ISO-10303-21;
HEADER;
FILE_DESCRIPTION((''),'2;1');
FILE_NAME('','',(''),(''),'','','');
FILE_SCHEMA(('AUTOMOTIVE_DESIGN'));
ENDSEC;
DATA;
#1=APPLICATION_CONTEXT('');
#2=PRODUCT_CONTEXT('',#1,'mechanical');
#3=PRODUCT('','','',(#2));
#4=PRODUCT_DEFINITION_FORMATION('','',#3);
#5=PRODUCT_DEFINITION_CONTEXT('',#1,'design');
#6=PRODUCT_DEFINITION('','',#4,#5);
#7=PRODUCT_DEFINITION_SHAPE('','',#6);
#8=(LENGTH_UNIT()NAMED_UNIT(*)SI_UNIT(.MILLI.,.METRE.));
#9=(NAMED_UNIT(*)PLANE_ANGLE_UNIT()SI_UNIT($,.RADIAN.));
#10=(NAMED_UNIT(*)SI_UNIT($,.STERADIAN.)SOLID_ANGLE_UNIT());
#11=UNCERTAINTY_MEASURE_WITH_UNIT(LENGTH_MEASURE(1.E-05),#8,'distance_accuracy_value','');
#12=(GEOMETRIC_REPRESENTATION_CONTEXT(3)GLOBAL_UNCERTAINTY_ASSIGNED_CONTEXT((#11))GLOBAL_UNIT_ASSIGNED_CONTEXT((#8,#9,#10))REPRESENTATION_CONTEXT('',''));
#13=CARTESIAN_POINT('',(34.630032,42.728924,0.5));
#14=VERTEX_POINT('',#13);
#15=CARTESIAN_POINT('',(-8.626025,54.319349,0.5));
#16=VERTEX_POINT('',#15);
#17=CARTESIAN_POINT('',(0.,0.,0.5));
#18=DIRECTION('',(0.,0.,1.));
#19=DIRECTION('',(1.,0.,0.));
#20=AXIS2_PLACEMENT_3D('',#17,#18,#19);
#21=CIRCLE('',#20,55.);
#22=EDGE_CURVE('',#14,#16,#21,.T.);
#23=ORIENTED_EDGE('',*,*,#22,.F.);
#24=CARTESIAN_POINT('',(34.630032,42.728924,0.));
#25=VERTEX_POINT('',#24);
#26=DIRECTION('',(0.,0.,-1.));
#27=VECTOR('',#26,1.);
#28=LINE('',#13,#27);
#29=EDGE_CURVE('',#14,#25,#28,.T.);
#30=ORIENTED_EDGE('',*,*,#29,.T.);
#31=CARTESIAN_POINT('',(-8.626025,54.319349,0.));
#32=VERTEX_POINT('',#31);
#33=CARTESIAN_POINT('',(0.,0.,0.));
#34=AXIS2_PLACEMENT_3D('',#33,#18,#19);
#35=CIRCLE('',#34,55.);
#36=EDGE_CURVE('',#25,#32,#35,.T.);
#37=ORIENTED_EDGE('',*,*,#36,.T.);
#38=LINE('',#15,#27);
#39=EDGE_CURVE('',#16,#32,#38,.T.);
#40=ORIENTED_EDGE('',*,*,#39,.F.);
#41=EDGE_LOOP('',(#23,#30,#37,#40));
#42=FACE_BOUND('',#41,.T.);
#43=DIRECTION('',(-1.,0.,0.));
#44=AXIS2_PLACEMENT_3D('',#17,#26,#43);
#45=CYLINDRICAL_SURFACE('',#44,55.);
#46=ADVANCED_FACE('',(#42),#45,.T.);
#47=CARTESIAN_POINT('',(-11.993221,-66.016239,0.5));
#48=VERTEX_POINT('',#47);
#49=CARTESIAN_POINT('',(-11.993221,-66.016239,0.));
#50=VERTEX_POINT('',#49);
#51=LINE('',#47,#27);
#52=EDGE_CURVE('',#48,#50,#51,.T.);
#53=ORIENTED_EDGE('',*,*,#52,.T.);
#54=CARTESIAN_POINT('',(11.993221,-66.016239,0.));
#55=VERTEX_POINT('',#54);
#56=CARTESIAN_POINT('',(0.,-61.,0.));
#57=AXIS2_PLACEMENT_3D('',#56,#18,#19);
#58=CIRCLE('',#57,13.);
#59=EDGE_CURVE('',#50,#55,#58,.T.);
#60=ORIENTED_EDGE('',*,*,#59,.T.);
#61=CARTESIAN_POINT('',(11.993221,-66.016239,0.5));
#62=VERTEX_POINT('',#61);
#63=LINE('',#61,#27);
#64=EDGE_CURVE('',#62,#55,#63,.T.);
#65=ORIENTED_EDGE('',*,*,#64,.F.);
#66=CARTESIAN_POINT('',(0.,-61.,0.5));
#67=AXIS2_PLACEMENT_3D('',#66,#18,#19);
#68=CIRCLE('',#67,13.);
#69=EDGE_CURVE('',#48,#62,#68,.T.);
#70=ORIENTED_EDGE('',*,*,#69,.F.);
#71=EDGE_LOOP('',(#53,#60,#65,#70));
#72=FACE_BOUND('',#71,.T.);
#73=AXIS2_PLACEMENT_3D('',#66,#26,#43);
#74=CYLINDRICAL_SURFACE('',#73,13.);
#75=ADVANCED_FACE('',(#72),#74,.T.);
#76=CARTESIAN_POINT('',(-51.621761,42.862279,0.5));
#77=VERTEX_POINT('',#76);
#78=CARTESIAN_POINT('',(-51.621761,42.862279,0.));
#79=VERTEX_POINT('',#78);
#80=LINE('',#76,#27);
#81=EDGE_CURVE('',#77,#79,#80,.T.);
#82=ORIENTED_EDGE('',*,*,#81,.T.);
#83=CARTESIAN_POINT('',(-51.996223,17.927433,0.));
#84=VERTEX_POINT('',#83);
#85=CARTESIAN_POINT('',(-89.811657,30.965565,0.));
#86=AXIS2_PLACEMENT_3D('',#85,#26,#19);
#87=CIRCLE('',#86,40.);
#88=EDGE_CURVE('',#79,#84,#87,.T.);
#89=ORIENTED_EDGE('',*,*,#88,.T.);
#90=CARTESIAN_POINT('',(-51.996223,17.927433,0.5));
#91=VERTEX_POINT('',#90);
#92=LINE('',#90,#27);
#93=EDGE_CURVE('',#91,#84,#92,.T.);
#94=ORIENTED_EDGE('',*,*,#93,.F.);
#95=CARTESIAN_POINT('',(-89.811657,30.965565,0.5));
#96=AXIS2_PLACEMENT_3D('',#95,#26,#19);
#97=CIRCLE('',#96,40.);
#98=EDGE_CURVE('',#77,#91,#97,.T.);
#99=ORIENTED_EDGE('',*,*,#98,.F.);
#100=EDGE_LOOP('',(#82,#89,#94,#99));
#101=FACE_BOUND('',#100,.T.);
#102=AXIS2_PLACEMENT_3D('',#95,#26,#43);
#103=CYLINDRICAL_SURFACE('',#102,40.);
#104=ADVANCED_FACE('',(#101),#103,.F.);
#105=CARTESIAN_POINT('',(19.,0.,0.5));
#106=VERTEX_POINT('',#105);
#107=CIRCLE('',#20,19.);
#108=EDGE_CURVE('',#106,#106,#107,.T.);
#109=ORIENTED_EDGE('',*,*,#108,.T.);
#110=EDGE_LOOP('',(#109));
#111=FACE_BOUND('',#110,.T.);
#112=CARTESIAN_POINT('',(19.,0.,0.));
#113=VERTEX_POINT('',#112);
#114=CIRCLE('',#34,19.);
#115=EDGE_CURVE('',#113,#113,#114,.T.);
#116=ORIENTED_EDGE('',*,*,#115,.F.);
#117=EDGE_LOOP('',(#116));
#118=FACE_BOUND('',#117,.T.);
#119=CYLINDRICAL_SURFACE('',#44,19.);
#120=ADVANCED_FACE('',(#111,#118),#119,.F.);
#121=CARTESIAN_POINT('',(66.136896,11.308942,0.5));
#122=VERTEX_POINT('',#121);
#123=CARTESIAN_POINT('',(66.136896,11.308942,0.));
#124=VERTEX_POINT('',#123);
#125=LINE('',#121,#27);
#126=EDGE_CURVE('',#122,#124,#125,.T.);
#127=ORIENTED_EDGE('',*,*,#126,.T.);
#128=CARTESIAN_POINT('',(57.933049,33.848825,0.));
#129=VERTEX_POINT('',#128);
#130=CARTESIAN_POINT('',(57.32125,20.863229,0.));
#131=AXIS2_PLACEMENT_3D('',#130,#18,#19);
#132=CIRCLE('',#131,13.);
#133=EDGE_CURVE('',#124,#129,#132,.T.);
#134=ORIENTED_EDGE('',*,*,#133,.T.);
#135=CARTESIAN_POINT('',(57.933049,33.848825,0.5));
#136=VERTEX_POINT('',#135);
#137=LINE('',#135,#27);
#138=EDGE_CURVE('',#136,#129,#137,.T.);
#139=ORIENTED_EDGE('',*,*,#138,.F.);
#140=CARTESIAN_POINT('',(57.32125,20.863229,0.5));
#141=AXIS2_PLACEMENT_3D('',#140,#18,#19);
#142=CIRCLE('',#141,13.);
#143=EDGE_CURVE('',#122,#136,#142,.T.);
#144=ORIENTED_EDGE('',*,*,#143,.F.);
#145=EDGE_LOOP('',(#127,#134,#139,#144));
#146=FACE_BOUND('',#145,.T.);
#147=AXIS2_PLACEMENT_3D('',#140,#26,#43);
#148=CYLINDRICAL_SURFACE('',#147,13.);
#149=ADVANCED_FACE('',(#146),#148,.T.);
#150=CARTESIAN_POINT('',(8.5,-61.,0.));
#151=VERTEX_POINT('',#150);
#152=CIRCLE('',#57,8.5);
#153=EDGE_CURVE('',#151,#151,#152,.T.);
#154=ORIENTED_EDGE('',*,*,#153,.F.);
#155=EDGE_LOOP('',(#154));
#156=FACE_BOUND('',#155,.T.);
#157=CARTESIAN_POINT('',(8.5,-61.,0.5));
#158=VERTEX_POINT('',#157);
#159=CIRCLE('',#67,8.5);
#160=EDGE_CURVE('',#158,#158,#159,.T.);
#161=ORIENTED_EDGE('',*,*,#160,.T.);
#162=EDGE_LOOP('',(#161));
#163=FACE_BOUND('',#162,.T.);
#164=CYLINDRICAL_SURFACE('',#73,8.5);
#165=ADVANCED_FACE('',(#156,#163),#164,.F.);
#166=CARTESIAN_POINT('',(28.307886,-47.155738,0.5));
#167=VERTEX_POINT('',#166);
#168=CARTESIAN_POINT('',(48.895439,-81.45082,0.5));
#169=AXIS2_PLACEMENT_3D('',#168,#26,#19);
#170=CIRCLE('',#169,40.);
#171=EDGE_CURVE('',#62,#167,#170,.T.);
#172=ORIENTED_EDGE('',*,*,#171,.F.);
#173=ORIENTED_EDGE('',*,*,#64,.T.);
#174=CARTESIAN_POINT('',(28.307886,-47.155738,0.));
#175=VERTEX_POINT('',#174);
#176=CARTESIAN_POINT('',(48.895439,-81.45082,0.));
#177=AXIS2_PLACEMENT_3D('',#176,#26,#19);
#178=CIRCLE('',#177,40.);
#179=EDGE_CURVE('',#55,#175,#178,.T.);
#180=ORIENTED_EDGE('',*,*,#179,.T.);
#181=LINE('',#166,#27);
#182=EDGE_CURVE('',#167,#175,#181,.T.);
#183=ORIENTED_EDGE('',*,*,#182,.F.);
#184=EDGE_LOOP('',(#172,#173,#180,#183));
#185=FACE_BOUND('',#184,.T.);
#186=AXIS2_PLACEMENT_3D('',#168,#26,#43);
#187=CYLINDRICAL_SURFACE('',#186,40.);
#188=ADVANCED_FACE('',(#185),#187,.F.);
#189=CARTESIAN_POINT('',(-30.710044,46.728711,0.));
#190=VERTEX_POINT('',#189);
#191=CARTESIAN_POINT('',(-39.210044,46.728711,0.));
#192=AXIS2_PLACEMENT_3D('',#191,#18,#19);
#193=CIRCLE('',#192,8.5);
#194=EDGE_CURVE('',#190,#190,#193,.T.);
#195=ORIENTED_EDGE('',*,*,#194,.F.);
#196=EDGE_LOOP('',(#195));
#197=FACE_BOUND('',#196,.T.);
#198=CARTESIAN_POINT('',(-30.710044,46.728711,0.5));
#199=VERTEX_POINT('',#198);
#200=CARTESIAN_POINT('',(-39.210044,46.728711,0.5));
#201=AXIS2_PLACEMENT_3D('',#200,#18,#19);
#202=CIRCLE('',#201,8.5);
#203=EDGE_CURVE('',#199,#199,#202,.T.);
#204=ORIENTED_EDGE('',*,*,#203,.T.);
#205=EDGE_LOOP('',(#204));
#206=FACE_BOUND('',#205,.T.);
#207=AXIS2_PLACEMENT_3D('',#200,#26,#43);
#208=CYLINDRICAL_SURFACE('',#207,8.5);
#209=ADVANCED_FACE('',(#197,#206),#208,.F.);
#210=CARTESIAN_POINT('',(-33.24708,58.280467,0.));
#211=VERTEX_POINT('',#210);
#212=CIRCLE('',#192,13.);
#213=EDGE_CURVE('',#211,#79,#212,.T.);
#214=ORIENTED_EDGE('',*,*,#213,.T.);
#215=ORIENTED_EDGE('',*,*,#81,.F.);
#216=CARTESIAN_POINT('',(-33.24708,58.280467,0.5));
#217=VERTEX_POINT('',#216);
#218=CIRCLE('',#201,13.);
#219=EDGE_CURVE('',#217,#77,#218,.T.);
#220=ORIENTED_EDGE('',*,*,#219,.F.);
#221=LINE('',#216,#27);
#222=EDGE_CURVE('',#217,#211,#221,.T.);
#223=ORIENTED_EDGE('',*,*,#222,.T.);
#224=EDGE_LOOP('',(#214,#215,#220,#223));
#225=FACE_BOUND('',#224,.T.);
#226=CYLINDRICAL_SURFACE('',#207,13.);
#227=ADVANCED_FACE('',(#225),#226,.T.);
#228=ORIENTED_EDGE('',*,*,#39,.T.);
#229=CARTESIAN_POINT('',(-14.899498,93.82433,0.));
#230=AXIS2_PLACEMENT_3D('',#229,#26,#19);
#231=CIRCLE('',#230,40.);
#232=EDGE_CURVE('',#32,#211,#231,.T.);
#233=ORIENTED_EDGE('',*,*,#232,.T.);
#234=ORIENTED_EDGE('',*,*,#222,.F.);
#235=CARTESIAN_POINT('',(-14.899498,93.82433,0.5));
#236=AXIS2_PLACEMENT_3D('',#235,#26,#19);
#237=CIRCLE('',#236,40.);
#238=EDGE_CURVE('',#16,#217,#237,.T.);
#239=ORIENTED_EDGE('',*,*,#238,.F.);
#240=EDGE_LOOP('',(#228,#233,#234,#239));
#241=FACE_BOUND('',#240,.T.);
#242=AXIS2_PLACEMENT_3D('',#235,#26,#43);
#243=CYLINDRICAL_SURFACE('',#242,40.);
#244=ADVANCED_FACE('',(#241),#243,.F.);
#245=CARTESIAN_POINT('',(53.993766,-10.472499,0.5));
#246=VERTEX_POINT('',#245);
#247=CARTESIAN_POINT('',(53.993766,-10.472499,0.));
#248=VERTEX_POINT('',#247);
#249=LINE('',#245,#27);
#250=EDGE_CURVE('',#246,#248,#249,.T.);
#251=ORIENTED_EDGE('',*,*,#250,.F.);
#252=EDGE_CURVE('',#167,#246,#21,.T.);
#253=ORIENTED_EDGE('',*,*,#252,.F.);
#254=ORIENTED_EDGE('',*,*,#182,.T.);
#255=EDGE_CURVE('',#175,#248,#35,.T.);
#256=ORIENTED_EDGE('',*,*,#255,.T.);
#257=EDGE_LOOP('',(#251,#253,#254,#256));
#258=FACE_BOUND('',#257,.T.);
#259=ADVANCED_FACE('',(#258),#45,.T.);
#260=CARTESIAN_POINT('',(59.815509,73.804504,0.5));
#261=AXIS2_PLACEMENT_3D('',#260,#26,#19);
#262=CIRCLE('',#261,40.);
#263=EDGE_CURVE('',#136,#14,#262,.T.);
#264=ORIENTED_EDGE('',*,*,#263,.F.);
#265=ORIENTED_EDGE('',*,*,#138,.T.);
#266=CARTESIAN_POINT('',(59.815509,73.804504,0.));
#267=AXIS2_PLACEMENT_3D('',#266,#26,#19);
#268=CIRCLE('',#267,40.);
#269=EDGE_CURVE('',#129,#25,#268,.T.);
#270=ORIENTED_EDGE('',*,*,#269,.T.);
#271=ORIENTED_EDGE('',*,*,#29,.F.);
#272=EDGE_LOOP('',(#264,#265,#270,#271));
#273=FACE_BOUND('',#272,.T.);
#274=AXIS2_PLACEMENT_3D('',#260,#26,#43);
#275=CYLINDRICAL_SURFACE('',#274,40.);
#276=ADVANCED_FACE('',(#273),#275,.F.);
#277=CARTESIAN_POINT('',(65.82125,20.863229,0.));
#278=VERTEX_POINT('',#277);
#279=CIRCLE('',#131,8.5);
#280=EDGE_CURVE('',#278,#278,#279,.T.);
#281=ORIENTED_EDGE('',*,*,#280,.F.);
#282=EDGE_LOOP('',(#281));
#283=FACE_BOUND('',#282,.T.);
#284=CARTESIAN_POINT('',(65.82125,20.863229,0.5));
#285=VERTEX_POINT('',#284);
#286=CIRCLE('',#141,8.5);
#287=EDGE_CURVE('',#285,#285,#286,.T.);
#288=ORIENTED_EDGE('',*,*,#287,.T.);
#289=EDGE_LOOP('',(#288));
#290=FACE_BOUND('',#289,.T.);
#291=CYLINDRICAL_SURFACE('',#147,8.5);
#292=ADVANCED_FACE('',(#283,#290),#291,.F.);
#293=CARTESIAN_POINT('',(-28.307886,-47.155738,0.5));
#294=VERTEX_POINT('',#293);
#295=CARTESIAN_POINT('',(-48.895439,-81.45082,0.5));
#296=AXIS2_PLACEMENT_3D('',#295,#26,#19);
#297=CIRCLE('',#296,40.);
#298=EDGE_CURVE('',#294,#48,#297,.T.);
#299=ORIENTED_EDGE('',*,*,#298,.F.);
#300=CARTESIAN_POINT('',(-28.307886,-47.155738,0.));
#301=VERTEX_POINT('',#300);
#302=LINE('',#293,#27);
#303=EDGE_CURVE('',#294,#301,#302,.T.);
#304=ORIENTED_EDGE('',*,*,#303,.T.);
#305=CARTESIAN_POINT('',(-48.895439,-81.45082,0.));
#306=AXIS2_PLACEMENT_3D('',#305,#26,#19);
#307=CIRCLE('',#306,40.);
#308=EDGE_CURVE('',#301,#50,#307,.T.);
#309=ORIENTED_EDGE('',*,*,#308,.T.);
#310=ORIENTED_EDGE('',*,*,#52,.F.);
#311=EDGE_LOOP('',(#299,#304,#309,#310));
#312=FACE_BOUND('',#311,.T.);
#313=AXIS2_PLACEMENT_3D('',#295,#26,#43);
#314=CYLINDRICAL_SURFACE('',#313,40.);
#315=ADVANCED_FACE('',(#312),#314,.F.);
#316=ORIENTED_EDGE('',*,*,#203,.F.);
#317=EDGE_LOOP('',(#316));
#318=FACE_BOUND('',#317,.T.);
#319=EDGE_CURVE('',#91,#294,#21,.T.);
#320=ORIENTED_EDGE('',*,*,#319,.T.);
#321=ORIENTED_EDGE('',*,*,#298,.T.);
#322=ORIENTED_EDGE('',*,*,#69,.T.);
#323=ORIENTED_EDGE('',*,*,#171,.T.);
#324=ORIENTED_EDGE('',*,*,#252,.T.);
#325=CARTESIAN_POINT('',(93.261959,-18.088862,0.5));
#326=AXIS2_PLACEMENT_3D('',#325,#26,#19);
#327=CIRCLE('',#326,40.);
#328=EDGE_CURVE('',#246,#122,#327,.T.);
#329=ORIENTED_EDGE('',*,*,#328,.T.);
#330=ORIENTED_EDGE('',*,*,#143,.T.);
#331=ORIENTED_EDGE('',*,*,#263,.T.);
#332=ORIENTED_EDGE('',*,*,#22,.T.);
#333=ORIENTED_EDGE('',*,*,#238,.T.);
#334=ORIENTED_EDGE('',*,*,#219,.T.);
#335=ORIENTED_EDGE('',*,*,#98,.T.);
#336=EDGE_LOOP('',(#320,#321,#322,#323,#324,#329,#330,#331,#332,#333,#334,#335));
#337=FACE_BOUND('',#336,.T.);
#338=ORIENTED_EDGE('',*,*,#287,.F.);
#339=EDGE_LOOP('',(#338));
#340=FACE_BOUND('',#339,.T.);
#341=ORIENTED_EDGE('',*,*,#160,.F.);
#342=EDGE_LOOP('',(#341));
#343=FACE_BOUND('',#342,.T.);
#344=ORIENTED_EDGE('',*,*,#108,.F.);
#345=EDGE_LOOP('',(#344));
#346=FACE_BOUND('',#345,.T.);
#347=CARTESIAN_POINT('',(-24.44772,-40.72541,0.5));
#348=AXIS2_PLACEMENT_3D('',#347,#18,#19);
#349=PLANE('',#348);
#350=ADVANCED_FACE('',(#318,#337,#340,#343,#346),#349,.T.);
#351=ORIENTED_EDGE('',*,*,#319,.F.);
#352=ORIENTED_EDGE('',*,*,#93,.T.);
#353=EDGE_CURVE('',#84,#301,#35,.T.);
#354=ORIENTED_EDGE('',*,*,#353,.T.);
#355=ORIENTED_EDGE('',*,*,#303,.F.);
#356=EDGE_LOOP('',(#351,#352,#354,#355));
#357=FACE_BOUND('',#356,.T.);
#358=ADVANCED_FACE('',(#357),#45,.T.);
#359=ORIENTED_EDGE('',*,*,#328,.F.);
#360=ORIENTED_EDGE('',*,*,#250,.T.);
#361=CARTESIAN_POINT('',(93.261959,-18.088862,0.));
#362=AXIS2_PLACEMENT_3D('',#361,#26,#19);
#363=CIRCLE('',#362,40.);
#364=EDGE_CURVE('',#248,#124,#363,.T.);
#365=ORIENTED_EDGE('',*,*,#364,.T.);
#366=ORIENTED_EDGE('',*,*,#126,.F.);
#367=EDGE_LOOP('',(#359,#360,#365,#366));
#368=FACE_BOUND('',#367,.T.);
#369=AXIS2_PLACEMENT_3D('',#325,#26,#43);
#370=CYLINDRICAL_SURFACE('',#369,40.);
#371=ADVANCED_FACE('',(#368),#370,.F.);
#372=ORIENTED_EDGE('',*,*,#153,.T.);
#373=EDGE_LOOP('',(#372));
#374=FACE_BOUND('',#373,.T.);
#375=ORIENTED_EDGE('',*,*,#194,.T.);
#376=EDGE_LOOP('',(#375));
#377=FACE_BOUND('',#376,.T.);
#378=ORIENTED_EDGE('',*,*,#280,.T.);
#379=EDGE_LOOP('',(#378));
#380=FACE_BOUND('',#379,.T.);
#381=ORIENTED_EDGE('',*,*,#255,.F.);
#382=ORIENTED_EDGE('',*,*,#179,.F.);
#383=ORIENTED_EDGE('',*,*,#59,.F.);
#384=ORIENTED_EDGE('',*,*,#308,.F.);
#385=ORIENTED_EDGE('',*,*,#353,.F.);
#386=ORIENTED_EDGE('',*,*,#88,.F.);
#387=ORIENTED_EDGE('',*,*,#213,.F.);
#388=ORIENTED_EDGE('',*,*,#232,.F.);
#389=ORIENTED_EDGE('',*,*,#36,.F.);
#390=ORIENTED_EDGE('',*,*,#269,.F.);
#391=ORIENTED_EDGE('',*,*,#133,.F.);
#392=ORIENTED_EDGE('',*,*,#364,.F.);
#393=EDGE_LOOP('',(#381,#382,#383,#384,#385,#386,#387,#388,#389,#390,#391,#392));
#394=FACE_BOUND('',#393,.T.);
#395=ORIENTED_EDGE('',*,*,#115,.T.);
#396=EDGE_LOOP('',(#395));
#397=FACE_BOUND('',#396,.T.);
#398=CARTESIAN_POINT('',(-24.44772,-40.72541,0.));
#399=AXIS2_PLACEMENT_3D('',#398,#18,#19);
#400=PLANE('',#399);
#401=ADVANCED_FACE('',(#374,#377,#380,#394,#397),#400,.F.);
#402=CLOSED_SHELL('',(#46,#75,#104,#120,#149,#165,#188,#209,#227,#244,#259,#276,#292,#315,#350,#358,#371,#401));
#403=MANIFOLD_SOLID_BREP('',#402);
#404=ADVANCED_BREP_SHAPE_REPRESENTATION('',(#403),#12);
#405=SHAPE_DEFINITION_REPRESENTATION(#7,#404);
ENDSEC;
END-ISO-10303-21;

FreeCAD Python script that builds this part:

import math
import FreeCAD as App
import Part
import Sketcher
Q = App.Units.Quantity

doc = App.newDocument("Part")
body = doc.addObject("PartDesign::Body", "Body")

# Sketch on XY plane
sketch1 = body.newObject("Sketcher::SketchObject", "Sketch")
sketch1.AttachmentSupport = (doc.getObject("XY_Plane"), [""])
sketch1.MapMode = "FlatFace"
sketch1.addGeometry(Part.ArcOfCircle(Part.Circle(App.Vector(0, -61, 0), App.Vector(0, 0, 1), 13), math.radians(-157), math.radians(-23)), False)
sketch1.addGeometry(Part.ArcOfCircle(Part.Circle(App.Vector(49, -81, 0), App.Vector(0, 0, 1), 40), math.radians(121), math.radians(157)), False)
sketch1.addGeometry(Part.ArcOfCircle(Part.Circle(App.Vector(0, 0, 0), App.Vector(0, 0, 1), 55), math.radians(-59), math.radians(-11)), False)
sketch1.addGeometry(Part.ArcOfCircle(Part.Circle(App.Vector(93, -18, 0), App.Vector(0, 0, 1), 40), math.radians(133), math.radians(169)), False)
sketch1.addGeometry(Part.ArcOfCircle(Part.Circle(App.Vector(57, 21, 0), App.Vector(0, 0, 1), 13), math.radians(-47), math.radians(87)), False)
sketch1.addGeometry(Part.ArcOfCircle(Part.Circle(App.Vector(60, 74, 0), App.Vector(0, 0, 1), 40), math.radians(-129), math.radians(-93)), False)
sketch1.addGeometry(Part.ArcOfCircle(Part.Circle(App.Vector(0, 0, 0), App.Vector(0, 0, 1), 55), math.radians(51), math.radians(99)), False)
sketch1.addGeometry(Part.ArcOfCircle(Part.Circle(App.Vector(-15, 94, 0), App.Vector(0, 0, 1), 40), math.radians(-117), math.radians(-81)), False)
sketch1.addGeometry(Part.ArcOfCircle(Part.Circle(App.Vector(-39, 47, 0), App.Vector(0, 0, 1), 13), math.radians(63), math.radians(197)), False)
sketch1.addGeometry(Part.ArcOfCircle(Part.Circle(App.Vector(-90, 31, 0), App.Vector(0, 0, 1), 40), math.radians(-19), math.radians(17)), False)
sketch1.addGeometry(Part.ArcOfCircle(Part.Circle(App.Vector(0, 0, 0), App.Vector(0, 0, 1), 55), math.radians(161), math.radians(239)), False)
sketch1.addGeometry(Part.ArcOfCircle(Part.Circle(App.Vector(-49, -81, 0), App.Vector(0, 0, 1), 40), math.radians(23), math.radians(59)), False)
sketch1.addGeometry(Part.Circle(App.Vector(0, -61, 0), App.Vector(0, 0, 1), 8), False)
sketch1.addGeometry(Part.Circle(App.Vector(0, 0, 0), App.Vector(0, 0, 1), 19), False)
sketch1.addGeometry(Part.Circle(App.Vector(-39, 47, 0), App.Vector(0, 0, 1), 8), False)
sketch1.addGeometry(Part.Circle(App.Vector(57, 21, 0), App.Vector(0, 0, 1), 8), False)
sketch1.addConstraint(Sketcher.Constraint("Tangent", 0, 2, 1, 2))
sketch1.addConstraint(Sketcher.Constraint("Tangent", 1, 1, 2, 1))
sketch1.addConstraint(Sketcher.Constraint("Tangent", 2, 2, 3, 2))
sketch1.addConstraint(Sketcher.Constraint("Tangent", 3, 1, 4, 1))
sketch1.addConstraint(Sketcher.Constraint("Tangent", 4, 2, 5, 2))
sketch1.addConstraint(Sketcher.Constraint("Tangent", 5, 1, 6, 1))
sketch1.addConstraint(Sketcher.Constraint("Tangent", 6, 2, 7, 2))
sketch1.addConstraint(Sketcher.Constraint("Tangent", 7, 1, 8, 1))
sketch1.addConstraint(Sketcher.Constraint("Tangent", 8, 2, 9, 2))
sketch1.addConstraint(Sketcher.Constraint("Tangent", 9, 1, 10, 1))
sketch1.addConstraint(Sketcher.Constraint("Tangent", 10, 2, 11, 2))
sketch1.addConstraint(Sketcher.Constraint("Tangent", 11, 1, 0, 1))
sketch1.addConstraint(Sketcher.Constraint("Coincident", 2, 3, -1, 1))
sketch1.addConstraint(Sketcher.Constraint("Coincident", 6, 3, -1, 1))
sketch1.addConstraint(Sketcher.Constraint("Coincident", 10, 3, -1, 1))
sketch1.addConstraint(Sketcher.Constraint("Coincident", 13, 3, -1, 1))
sketch1.addConstraint(Sketcher.Constraint("Coincident", 12, 3, 0, 3))
sketch1.addConstraint(Sketcher.Constraint("Coincident", 14, 3, 8, 3))
sketch1.addConstraint(Sketcher.Constraint("Coincident", 15, 3, 4, 3))
sketch1.addConstraint(Sketcher.Constraint("Equal", 1, 3))
sketch1.addConstraint(Sketcher.Constraint("Equal", 0, 4))
sketch1.addConstraint(Sketcher.Constraint("Equal", 3, 5))
sketch1.addConstraint(Sketcher.Constraint("Equal", 2, 6))
sketch1.addConstraint(Sketcher.Constraint("Equal", 5, 7))
sketch1.addConstraint(Sketcher.Constraint("Equal", 4, 8))
sketch1.addConstraint(Sketcher.Constraint("Equal", 7, 9))
sketch1.addConstraint(Sketcher.Constraint("Equal", 6, 10))
sketch1.addConstraint(Sketcher.Constraint("Equal", 9, 11))
sketch1.addConstraint(Sketcher.Constraint("Equal", 12, 14))
sketch1.addConstraint(Sketcher.Constraint("Equal", 14, 15))
sketch1.addConstraint(Sketcher.Constraint("PointOnObject", 0, 3, -2))
sketch1.addConstraint(Sketcher.Constraint("Diameter", 12, Q("17 mm")))
sketch1.addConstraint(Sketcher.Constraint("Diameter", 13, Q("38 mm")))
sketch1.addConstraint(Sketcher.Constraint("Radius", 0, Q("13 mm")))
sketch1.addConstraint(Sketcher.Constraint("Radius", 1, Q("40 mm")))
sketch1.addConstraint(Sketcher.Constraint("Radius", 2, Q("55 mm")))
sketch1.addConstraint(Sketcher.Constraint("DistanceY", 0, 3, -1, 1, Q("61 mm")))
sketch1.addConstraint(Sketcher.Constraint("DistanceX", 7, 3, -1, 1, Q("14.899498 mm")))
sketch1.addConstraint(Sketcher.Constraint("DistanceY", 2, 2, -1, 1, Q("10.472499 mm")))
sketch1.addConstraint(Sketcher.Constraint("DistanceY", 4, 3, 7, 3, Q("72.961102 mm")))
sketch1.addConstraint(Sketcher.Constraint("DistanceY", 9, 3, 7, 1, Q("27.314901 mm")))
pad1 = body.newObject("PartDesign::Pad", "Pad")
pad1.Profile = sketch1
pad1.Length = 0.5

doc.recompute()
